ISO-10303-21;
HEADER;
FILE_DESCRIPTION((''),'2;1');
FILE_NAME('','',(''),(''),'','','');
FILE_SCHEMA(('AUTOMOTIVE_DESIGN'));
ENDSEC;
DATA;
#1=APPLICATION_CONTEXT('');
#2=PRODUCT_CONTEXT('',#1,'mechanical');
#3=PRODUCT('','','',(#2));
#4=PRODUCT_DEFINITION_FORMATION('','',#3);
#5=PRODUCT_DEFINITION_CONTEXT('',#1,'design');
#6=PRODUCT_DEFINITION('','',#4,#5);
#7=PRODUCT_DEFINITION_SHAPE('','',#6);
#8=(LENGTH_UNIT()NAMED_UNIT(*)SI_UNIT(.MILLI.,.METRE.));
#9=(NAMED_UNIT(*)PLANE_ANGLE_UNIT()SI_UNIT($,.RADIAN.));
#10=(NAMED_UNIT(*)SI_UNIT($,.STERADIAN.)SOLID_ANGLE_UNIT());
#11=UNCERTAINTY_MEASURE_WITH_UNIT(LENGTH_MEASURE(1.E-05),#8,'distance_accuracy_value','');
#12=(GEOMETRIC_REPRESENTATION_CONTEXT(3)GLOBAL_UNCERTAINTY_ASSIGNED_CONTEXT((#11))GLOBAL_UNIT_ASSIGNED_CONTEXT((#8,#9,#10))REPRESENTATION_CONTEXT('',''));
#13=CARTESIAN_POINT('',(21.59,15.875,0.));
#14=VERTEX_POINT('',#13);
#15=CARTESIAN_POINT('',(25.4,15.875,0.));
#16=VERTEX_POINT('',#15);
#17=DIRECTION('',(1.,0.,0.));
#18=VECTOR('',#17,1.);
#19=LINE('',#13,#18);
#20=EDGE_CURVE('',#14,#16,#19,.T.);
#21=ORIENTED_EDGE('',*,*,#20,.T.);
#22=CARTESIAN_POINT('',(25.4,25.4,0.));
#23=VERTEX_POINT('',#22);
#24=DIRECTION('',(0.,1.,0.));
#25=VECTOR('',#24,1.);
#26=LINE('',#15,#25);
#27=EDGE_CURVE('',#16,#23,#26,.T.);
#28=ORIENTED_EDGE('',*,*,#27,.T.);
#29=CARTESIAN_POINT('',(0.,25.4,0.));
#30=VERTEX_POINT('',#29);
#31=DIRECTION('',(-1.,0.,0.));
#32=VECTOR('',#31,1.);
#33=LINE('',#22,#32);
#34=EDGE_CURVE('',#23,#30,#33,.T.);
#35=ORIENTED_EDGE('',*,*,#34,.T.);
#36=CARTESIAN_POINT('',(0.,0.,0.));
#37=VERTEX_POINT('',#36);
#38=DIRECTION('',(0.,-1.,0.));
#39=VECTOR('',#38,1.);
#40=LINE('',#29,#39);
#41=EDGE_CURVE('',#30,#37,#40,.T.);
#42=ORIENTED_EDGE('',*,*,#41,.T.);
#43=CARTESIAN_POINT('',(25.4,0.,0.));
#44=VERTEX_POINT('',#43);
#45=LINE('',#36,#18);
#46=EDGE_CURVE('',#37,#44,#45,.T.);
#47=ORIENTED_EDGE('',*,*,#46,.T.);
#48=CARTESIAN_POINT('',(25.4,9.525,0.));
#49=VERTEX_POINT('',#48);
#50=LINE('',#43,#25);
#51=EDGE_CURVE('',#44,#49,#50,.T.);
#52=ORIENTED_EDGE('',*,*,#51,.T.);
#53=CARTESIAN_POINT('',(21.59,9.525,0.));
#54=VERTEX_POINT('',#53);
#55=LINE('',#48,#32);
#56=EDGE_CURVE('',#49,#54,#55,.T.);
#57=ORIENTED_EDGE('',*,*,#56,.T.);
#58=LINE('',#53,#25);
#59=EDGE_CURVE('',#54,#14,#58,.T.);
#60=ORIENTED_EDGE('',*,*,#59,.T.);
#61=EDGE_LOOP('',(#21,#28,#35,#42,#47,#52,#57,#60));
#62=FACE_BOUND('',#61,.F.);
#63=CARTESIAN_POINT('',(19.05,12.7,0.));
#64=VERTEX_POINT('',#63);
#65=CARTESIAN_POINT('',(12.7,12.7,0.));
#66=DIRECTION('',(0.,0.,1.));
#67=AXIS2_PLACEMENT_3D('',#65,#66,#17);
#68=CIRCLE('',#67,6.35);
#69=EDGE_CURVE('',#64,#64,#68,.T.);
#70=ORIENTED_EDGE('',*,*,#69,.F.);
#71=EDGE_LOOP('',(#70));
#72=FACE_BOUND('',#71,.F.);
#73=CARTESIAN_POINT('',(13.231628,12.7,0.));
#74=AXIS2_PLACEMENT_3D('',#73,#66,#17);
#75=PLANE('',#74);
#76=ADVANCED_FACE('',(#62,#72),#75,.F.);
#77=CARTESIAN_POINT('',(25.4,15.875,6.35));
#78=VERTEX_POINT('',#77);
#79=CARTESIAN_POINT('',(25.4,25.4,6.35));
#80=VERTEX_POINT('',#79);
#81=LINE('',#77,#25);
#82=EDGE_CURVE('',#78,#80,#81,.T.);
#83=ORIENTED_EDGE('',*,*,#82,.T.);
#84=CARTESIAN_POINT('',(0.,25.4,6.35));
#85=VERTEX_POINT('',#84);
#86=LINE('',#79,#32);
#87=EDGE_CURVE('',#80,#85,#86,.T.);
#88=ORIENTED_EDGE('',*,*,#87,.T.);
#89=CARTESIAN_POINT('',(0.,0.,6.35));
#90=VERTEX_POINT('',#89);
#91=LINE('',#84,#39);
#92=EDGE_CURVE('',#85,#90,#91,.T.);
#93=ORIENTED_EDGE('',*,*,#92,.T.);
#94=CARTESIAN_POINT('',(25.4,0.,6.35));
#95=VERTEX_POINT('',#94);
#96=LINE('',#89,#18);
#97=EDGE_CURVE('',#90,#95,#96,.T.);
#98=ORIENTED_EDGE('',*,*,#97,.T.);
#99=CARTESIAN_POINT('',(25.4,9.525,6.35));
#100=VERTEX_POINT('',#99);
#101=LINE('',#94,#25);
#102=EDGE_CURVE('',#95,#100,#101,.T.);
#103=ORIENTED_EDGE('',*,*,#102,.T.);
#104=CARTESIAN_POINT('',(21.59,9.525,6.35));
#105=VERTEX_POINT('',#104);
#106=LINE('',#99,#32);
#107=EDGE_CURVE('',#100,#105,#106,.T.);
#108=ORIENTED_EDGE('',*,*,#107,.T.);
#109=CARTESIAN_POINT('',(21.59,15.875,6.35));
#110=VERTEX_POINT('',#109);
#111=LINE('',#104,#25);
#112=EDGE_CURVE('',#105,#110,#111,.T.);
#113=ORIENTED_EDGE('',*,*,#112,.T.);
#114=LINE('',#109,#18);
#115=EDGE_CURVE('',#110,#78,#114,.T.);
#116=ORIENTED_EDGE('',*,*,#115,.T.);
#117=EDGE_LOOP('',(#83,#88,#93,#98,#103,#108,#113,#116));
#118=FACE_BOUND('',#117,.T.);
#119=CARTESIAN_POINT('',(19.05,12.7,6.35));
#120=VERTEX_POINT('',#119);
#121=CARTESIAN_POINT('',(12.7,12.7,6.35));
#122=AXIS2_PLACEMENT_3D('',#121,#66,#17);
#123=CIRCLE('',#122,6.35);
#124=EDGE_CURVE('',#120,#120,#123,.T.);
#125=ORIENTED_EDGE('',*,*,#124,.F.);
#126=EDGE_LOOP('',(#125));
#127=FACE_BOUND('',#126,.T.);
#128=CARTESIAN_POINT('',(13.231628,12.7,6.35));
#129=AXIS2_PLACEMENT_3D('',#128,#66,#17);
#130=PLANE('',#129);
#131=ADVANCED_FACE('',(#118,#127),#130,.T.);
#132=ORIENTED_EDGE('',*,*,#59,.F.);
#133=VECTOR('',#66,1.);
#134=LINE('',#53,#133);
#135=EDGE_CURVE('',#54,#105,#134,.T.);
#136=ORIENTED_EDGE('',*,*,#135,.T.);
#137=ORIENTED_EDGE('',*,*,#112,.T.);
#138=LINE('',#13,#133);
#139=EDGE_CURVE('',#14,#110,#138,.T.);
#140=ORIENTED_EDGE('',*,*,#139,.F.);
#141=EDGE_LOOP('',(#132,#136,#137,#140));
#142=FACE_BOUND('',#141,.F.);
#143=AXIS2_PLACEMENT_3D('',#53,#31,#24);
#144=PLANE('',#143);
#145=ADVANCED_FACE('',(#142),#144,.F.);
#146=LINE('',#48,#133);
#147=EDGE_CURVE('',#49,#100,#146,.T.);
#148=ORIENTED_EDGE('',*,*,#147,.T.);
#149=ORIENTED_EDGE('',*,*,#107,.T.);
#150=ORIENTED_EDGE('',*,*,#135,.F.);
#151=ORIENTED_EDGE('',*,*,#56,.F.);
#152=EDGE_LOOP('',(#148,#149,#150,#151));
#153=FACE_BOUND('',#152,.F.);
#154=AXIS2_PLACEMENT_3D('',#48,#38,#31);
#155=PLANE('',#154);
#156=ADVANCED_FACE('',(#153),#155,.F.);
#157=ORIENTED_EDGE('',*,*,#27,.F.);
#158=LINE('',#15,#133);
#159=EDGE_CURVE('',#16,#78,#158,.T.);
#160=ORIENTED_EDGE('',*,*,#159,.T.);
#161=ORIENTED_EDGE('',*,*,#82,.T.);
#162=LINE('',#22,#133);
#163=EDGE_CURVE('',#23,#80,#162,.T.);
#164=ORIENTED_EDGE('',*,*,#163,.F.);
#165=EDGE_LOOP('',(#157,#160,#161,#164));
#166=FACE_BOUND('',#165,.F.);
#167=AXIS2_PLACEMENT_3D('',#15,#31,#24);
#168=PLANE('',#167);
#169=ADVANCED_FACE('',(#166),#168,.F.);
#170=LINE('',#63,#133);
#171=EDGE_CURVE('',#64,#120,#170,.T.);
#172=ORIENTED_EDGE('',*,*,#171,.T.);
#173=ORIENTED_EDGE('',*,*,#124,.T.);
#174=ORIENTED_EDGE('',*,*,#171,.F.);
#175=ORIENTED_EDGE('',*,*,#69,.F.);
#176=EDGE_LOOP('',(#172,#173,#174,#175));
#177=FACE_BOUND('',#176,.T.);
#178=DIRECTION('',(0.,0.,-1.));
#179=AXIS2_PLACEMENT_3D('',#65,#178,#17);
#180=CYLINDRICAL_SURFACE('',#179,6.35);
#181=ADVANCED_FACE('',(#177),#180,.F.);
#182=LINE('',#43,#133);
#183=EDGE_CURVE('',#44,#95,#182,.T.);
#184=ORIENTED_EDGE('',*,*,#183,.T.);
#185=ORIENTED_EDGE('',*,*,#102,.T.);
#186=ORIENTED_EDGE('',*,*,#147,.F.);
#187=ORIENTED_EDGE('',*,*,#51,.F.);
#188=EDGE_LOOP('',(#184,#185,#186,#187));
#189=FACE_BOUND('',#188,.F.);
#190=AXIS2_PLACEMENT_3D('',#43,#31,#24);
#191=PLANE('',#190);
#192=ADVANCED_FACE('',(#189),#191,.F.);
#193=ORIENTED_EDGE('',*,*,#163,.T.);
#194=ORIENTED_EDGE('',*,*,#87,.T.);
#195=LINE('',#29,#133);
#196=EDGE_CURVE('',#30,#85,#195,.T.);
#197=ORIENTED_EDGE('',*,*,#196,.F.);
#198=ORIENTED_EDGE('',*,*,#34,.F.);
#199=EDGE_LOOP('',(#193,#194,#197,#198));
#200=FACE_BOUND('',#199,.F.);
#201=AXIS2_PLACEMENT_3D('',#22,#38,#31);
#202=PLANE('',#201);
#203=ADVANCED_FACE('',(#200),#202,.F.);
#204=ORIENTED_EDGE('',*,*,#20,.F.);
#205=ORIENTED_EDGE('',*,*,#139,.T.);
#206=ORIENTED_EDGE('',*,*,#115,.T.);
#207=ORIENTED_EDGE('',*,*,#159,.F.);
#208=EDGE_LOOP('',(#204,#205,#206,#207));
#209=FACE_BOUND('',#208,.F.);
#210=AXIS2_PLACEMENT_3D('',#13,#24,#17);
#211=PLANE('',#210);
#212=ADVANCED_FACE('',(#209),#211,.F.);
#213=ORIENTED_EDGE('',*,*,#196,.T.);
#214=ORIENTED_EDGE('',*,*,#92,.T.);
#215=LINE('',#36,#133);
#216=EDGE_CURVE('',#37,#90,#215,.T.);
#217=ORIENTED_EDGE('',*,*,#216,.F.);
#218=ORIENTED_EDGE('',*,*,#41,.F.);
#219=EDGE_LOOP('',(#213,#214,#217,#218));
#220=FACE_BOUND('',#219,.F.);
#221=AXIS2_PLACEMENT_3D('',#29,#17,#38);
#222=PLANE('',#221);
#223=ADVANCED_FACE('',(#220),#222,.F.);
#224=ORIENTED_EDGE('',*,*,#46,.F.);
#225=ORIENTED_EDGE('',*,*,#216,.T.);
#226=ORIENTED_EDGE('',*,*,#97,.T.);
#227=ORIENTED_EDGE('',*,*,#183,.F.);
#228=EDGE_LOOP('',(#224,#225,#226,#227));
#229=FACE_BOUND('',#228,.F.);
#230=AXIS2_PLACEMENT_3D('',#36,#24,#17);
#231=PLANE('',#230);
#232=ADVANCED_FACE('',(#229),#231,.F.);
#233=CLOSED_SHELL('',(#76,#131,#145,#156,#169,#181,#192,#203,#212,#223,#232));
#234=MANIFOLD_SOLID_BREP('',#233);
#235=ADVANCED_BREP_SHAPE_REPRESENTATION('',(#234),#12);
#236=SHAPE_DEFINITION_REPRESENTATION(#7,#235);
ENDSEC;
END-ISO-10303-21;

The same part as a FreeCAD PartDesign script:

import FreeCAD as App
import Part
import Sketcher
from FreeCAD import Vector
Q = App.Units.Quantity


def add_polygon(sketch, points):
    """Adds a closed chain of lines whose ends are joined by coincident constraints."""
    first, n = sketch.GeometryCount, len(points)
    for a, b in zip(points, points[1:] + points[:1]):
        sketch.addGeometry(Part.LineSegment(App.Vector(*a, 0), App.Vector(*b, 0)), False)
    for i in range(n):
        sketch.addConstraint(Sketcher.Constraint("Coincident", first + i, 2, first + (i + 1) % n, 1))

doc = App.newDocument("Part")
body = doc.addObject("PartDesign::Body", "Body")

# Sketch on XY plane
sketch1 = doc.addObject("Sketcher::SketchObject", "Sketch")
body.addObject(sketch1)
sketch1.AttachmentSupport = (doc.XY_Plane, [""])
sketch1.MapMode = "FlatFace"
add_polygon(sketch1, [(0, 25.4), (0, 0), (25.4, 0), (25.4, 9.5), (21.6, 9.5), (21.6, 15.9), (25.4, 15.9), (25.4, 25.4)])  # lines 0-7
sketch1.addGeometry(Part.Circle(Vector(12.7, 12.7, 0), Vector(0, 0, 1), 6.3), False)  # 8
sketch1.addConstraint([
    Sketcher.Constraint("Vertical", 0),
    Sketcher.Constraint("Horizontal", 1),
    Sketcher.Constraint("Vertical", 2),
    Sketcher.Constraint("Horizontal", 3),
    Sketcher.Constraint("Vertical", 4),
    Sketcher.Constraint("Horizontal", 5),
    Sketcher.Constraint("Vertical", 6),
    Sketcher.Constraint("Horizontal", 7),
    Sketcher.Constraint("Coincident", 0, 2, -1, 1),
    Sketcher.Constraint("Vertical", 2, 2, 5, 2),
    Sketcher.Constraint("Equal", 7, 0),
    Sketcher.Constraint("Equal", 2, 6),
    Sketcher.Constraint("Diameter", 8, Q("0.5 in")),
    Sketcher.Constraint("DistanceX", 1, 1, 1, 2, Q("1 in")),
    Sketcher.Constraint("DistanceX", 3, 2, 3, 1, Q("0.15 in")),
    Sketcher.Constraint("DistanceY", 4, 1, 4, 2, Q("0.25 in")),
    Sketcher.Constraint("DistanceX", -1, 1, 8, 3, Q("0.5 in")),
    Sketcher.Constraint("DistanceY", -1, 1, 8, 3, Q("0.5 in")),
])
pad1 = doc.addObject("PartDesign::Pad", "Pad")
body.addObject(pad1)
pad1.Profile = sketch1
pad1.Length = Q("0.25 in")

doc.recompute()
